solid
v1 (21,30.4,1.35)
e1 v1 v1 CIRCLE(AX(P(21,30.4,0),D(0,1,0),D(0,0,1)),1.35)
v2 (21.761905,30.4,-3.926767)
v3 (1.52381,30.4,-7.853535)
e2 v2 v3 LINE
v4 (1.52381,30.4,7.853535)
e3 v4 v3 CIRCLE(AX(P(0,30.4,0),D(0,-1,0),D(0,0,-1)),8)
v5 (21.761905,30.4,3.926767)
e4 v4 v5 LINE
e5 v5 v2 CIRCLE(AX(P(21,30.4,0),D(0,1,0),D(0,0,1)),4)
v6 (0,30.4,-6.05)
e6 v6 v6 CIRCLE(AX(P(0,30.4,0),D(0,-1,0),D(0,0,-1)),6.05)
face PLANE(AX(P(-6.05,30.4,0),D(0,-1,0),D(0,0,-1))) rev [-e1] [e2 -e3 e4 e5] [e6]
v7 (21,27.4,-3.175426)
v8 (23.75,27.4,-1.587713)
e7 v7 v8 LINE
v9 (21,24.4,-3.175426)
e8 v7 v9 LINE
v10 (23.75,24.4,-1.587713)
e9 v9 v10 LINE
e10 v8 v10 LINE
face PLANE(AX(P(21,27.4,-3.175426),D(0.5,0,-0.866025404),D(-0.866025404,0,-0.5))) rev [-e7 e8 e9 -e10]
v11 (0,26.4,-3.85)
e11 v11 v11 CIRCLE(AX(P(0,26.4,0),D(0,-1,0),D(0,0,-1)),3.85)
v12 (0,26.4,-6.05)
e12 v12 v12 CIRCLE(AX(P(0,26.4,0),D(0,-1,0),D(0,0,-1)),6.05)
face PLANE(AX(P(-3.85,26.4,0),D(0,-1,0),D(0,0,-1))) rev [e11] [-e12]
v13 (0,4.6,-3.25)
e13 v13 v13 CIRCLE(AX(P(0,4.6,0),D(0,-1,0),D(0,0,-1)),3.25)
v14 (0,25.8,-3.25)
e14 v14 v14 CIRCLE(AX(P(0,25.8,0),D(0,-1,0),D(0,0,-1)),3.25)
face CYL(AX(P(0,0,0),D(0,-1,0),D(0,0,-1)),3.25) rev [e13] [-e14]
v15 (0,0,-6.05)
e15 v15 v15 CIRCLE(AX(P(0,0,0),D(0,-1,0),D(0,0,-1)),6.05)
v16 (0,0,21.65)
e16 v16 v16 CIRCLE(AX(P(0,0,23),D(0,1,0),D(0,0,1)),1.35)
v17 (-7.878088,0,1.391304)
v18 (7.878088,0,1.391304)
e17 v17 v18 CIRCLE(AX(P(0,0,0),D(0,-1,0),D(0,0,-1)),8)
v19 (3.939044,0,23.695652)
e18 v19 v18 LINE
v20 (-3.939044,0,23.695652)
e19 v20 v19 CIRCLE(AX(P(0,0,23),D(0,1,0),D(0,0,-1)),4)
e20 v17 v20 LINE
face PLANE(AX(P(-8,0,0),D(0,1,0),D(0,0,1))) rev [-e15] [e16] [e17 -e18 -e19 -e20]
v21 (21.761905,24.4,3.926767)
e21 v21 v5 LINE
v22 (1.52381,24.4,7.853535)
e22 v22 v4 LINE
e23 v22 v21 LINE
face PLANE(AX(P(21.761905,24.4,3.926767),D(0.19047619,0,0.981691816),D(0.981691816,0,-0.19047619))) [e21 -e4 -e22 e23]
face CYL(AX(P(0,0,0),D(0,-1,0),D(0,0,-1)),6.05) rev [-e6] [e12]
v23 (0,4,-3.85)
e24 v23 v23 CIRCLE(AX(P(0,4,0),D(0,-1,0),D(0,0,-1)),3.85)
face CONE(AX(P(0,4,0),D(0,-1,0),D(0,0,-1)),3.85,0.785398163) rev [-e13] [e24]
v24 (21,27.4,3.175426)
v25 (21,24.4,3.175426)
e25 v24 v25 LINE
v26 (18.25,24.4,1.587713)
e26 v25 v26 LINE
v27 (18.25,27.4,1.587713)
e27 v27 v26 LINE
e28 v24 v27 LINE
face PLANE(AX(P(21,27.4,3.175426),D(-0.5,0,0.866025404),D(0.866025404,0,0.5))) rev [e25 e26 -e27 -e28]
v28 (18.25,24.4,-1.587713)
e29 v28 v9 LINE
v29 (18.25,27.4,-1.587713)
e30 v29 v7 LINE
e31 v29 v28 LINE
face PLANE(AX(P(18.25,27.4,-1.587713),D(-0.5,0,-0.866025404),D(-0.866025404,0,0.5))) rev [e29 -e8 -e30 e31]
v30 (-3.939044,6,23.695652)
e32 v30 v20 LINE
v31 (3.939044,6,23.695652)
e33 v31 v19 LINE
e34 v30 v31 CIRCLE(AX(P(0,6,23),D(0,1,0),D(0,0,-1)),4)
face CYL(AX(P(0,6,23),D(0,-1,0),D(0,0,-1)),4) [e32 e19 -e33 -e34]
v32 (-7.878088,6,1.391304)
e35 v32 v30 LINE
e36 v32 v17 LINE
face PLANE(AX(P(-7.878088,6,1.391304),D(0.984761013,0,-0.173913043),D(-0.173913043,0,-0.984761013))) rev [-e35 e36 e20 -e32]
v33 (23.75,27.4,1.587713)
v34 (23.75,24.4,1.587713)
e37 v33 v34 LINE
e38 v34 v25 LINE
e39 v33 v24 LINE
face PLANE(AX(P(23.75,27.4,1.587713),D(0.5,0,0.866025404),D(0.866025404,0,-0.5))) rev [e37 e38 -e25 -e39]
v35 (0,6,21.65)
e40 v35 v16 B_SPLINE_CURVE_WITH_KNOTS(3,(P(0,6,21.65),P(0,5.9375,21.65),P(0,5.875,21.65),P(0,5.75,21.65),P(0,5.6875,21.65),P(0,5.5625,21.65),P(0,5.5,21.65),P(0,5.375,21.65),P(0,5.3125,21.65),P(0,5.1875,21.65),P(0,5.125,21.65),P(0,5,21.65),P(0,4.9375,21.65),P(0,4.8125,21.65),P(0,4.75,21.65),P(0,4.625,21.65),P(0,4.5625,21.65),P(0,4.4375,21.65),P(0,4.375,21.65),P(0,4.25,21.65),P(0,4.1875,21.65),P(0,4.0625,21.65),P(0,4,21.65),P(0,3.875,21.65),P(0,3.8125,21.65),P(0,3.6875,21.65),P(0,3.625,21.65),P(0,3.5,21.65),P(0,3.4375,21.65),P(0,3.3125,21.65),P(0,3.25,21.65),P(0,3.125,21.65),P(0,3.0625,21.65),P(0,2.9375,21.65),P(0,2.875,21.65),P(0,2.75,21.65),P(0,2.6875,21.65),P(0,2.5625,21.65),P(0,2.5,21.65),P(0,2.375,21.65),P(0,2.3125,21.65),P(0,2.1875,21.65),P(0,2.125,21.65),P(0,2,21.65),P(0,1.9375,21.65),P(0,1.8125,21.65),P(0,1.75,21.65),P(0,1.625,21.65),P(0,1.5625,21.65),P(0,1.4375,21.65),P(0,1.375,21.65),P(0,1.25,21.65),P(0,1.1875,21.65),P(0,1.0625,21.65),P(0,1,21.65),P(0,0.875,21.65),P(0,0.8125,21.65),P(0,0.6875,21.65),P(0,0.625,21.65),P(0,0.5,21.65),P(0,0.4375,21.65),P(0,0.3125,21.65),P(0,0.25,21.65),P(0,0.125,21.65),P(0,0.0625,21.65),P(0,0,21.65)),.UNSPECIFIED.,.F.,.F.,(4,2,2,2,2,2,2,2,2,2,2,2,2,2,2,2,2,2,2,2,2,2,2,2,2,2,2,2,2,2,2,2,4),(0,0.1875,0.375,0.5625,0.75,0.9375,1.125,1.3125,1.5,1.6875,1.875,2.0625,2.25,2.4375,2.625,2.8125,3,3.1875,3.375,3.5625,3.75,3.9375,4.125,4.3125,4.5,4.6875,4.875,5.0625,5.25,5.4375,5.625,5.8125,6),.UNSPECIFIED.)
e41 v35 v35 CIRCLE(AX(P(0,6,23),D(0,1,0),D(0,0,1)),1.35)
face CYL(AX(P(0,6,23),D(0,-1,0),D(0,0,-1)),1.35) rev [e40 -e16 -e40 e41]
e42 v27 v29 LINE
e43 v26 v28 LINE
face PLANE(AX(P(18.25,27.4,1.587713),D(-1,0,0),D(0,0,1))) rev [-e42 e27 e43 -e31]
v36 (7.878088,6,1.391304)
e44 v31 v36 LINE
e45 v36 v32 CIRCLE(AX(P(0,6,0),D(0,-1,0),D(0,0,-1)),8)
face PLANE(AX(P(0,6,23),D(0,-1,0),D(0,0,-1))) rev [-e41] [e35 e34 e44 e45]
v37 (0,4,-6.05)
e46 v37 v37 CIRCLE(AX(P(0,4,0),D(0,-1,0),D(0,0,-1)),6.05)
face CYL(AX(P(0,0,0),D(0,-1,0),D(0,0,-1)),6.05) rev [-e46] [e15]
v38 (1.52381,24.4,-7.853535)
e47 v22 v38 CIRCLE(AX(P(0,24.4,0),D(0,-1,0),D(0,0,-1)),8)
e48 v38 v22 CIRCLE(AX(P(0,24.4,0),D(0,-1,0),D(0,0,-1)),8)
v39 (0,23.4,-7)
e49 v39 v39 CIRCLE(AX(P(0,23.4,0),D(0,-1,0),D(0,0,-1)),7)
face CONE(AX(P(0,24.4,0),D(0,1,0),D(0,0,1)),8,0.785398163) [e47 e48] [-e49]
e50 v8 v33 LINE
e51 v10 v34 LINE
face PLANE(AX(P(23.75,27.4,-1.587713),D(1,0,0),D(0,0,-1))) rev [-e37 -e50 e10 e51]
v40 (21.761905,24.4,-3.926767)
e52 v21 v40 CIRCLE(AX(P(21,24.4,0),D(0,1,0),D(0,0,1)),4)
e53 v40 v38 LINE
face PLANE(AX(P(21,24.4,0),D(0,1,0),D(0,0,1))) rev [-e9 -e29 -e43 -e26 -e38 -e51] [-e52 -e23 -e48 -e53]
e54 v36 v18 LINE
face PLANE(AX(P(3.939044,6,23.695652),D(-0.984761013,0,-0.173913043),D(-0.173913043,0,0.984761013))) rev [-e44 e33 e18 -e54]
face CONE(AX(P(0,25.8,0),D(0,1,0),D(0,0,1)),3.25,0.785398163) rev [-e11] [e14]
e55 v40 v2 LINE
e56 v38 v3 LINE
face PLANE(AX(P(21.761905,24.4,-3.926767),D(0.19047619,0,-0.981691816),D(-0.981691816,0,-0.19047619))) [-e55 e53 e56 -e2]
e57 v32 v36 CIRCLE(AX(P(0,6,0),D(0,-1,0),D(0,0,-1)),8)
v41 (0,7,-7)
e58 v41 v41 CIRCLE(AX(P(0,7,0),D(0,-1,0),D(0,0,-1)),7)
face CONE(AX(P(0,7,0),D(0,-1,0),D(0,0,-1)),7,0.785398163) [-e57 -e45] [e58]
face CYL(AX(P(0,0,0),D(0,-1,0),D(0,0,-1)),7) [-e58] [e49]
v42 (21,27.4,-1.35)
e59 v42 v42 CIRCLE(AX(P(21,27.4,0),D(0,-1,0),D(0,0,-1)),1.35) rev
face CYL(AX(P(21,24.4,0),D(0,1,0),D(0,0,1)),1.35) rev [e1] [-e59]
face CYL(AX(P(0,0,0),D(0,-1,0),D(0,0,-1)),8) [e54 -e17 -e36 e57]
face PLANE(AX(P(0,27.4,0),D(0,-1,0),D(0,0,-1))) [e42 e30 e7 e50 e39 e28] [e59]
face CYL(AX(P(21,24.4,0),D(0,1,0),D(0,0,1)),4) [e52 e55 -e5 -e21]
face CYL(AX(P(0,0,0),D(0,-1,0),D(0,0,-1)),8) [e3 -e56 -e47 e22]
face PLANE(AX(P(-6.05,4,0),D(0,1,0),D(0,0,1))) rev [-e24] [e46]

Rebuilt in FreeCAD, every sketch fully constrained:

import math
import FreeCAD as App
import Part
import Sketcher
from FreeCAD import Vector
Q = App.Units.Quantity

doc = App.newDocument("Part")
body = doc.addObject("PartDesign::Body", "Body")

# Sketch on XY plane
sketch1 = body.newObject("Sketcher::SketchObject", "Sketch")
sketch1.AttachmentSupport = (doc.getObject("XY_Plane"), [""])
sketch1.MapMode = "FlatFace"
sketch1.addGeometry(Part.LineSegment(Vector(-6, 0, 0), Vector(-6, 4, 0)), False)
sketch1.addGeometry(Part.LineSegment(Vector(-6, 4, 0), Vector(-3.9, 4, 0)), False)
sketch1.addGeometry(Part.LineSegment(Vector(-3.9, 4, 0), Vector(-3.2, 4.6, 0)), False)
sketch1.addGeometry(Part.LineSegment(Vector(-3.2, 4.6, 0), Vector(-3.2, 25.8, 0)), False)
sketch1.addGeometry(Part.LineSegment(Vector(-3.2, 25.8, 0), Vector(-3.9, 26.4, 0)), False)
sketch1.addGeometry(Part.LineSegment(Vector(-3.9, 26.4, 0), Vector(-6, 26.4, 0)), False)
sketch1.addGeometry(Part.LineSegment(Vector(-6, 26.4, 0), Vector(-6, 30.4, 0)), False)
sketch1.addGeometry(Part.LineSegment(Vector(-6, 30.4, 0), Vector(-8, 30.4, 0)), False)
sketch1.addGeometry(Part.LineSegment(Vector(-8, 30.4, 0), Vector(-8, 24.4, 0)), False)
sketch1.addGeometry(Part.LineSegment(Vector(-8, 24.4, 0), Vector(-7, 23.4, 0)), False)
sketch1.addGeometry(Part.LineSegment(Vector(-7, 23.4, 0), Vector(-7, 7, 0)), False)
sketch1.addGeometry(Part.LineSegment(Vector(-7, 7, 0), Vector(-8, 6, 0)), False)
sketch1.addGeometry(Part.LineSegment(Vector(-8, 6, 0), Vector(-8, 0, 0)), False)
sketch1.addGeometry(Part.LineSegment(Vector(-8, 0, 0), Vector(-6, 0, 0)), False)
sketch1.addConstraint(Sketcher.Constraint("Coincident", 0, 2, 1, 1))
sketch1.addConstraint(Sketcher.Constraint("Coincident", 1, 2, 2, 1))
sketch1.addConstraint(Sketcher.Constraint("Coincident", 2, 2, 3, 1))
sketch1.addConstraint(Sketcher.Constraint("Coincident", 3, 2, 4, 1))
sketch1.addConstraint(Sketcher.Constraint("Coincident", 4, 2, 5, 1))
sketch1.addConstraint(Sketcher.Constraint("Coincident", 5, 2, 6, 1))
sketch1.addConstraint(Sketcher.Constraint("Coincident", 6, 2, 7, 1))
sketch1.addConstraint(Sketcher.Constraint("Coincident", 7, 2, 8, 1))
sketch1.addConstraint(Sketcher.Constraint("Coincident", 8, 2, 9, 1))
sketch1.addConstraint(Sketcher.Constraint("Coincident", 9, 2, 10, 1))
sketch1.addConstraint(Sketcher.Constraint("Coincident", 10, 2, 11, 1))
sketch1.addConstraint(Sketcher.Constraint("Coincident", 11, 2, 12, 1))
sketch1.addConstraint(Sketcher.Constraint("Coincident", 12, 2, 13, 1))
sketch1.addConstraint(Sketcher.Constraint("Coincident", 13, 2, 0, 1))
sketch1.addConstraint(Sketcher.Constraint("Vertical", 0))
sketch1.addConstraint(Sketcher.Constraint("Horizontal", 1))
sketch1.addConstraint(Sketcher.Constraint("Vertical", 3))
sketch1.addConstraint(Sketcher.Constraint("Horizontal", 5))
sketch1.addConstraint(Sketcher.Constraint("Vertical", 6))
sketch1.addConstraint(Sketcher.Constraint("Horizontal", 7))
sketch1.addConstraint(Sketcher.Constraint("Vertical", 8))
sketch1.addConstraint(Sketcher.Constraint("Vertical", 10))
sketch1.addConstraint(Sketcher.Constraint("Vertical", 12))
sketch1.addConstraint(Sketcher.Constraint("Horizontal", 13))
sketch1.addConstraint(Sketcher.Constraint("PointOnObject", 12, 2, -1))
sketch1.addConstraint(Sketcher.Constraint("Perpendicular", 2, 4))
sketch1.addConstraint(Sketcher.Constraint("Parallel", 4, 9))
sketch1.addConstraint(Sketcher.Constraint("Perpendicular", 9, 11))
sketch1.addConstraint(Sketcher.Constraint("Vertical", 1, 2, 4, 2))
sketch1.addConstraint(Sketcher.Constraint("Vertical", 0, 2, 5, 2))
sketch1.addConstraint(Sketcher.Constraint("Vertical", 8, 2, 11, 2))
sketch1.addConstraint(Sketcher.Constraint("Equal", 0, 6))
sketch1.addConstraint(Sketcher.Constraint("Equal", 8, 12))
sketch1.addConstraint(Sketcher.Constraint("Equal", 2, 4))
sketch1.addConstraint(Sketcher.Constraint("DistanceY", 0, 1, 0, 2, 4.0))
sketch1.addConstraint(Sketcher.Constraint("DistanceY", 8, 2, 8, 1, 6.0))
sketch1.addConstraint(Sketcher.Constraint("DistanceX", 1, 1, 1, 2, 2.2))
sketch1.addConstraint(Sketcher.Constraint("DistanceY", 3, 1, 3, 2, 21.2))
sketch1.addConstraint(Sketcher.Constraint("DistanceY", 10, 2, 10, 1, 16.4))
sketch1.addConstraint(Sketcher.Constraint("DistanceX", 7, 2, -1, 1, 8.0))
sketch1.addConstraint(Sketcher.Constraint("DistanceX", 9, 2, -1, 1, 7.0))
sketch1.addConstraint(Sketcher.Constraint("DistanceX", 7, 2, 7, 1, 1.95))
revolution = body.newObject("PartDesign::Revolution", "Revolution")
revolution.Profile = sketch1
revolution.ReferenceAxis = (sketch1, ["V_Axis"])
revolution.Angle = 360

# Sketch on XZ plane
sketch2 = body.newObject("Sketcher::SketchObject", "Sketch001")
sketch2.AttachmentSupport = (doc.getObject("XZ_Plane"), [""])
sketch2.MapMode = "FlatFace"
sketch2.addGeometry(Part.LineSegment(Vector(-7.9, 1.4, 0), Vector(-3.9, 23.7, 0)), False)
sketch2.addGeometry(Part.ArcOfCircle(Part.Circle(Vector(0, 23, 0), Vector(0, 0, 1), 4), math.radians(10), math.radians(170)), False)
sketch2.addGeometry(Part.LineSegment(Vector(3.9, 23.7, 0), Vector(7.9, 1.4, 0)), False)
sketch2.addGeometry(Part.ArcOfCircle(Part.Circle(Vector(0, 0, 0), Vector(0, 0, 1), 8), math.radians(10), math.radians(170)), False)
sketch2.addGeometry(Part.Circle(Vector(0, 23, 0), Vector(0, 0, 1), 1.4), False)
sketch2.addConstraint(Sketcher.Constraint("Tangent", 0, 2, 1, 2))
sketch2.addConstraint(Sketcher.Constraint("Tangent", 1, 1, 2, 1))
sketch2.addConstraint(Sketcher.Constraint("Tangent", 2, 2, 3, 1))
sketch2.addConstraint(Sketcher.Constraint("Tangent", 3, 2, 0, 1))
sketch2.addConstraint(Sketcher.Constraint("Coincident", 3, 3, -1, 1))
sketch2.addConstraint(Sketcher.Constraint("Coincident", 4, 3, 1, 3))
sketch2.addConstraint(Sketcher.Constraint("PointOnObject", 1, 3, -2))
sketch2.addConstraint(Sketcher.Constraint("Radius", 1, 4.0))
sketch2.addConstraint(Sketcher.Constraint("Radius", 3, 8.0))
sketch2.addConstraint(Sketcher.Constraint("Diameter", 4, 2.7))
sketch2.addConstraint(Sketcher.Constraint("DistanceY", -1, 1, 1, 3, 23.0))
pad1 = body.newObject("PartDesign::Pad", "Pad")
pad1.Profile = sketch2
pad1.Length = 6
pad1.Reversed = True

# Sketch on XZ plane
sketch3 = body.newObject("Sketcher::SketchObject", "Sketch002")
sketch3.AttachmentSupport = (doc.getObject("XZ_Plane"), [""])
sketch3.MapMode = "FlatFace"
sketch3.AttachmentOffset = App.Placement(Vector(0, 0, -24.4), App.Rotation())
sketch3.addGeometry(Part.LineSegment(Vector(21.8, -3.9, 0), Vector(1.5, -7.9, 0)), False)
sketch3.addGeometry(Part.ArcOfCircle(Part.Circle(Vector(0, 0, 0), Vector(0, 0, 1), 8), math.radians(-79), math.radians(79)), False)
sketch3.addGeometry(Part.LineSegment(Vector(1.5, 7.9, 0), Vector(21.8, 3.9, 0)), False)
sketch3.addGeometry(Part.ArcOfCircle(Part.Circle(Vector(21, 0, 0), Vector(0, 0, 1), 4), math.radians(-79), math.radians(79)), False)
sketch3.addGeometry(Part.Circle(Vector(21, 0, 0), Vector(0, 0, 1), 1.4), False)
sketch3.addConstraint(Sketcher.Constraint("Tangent", 0, 2, 1, 1))
sketch3.addConstraint(Sketcher.Constraint("Tangent", 1, 2, 2, 1))
sketch3.addConstraint(Sketcher.Constraint("Tangent", 2, 2, 3, 2))
sketch3.addConstraint(Sketcher.Constraint("Tangent", 3, 1, 0, 1))
sketch3.addConstraint(Sketcher.Constraint("Coincident", 1, 3, -1, 1))
sketch3.addConstraint(Sketcher.Constraint("Coincident", 4, 3, 3, 3))
sketch3.addConstraint(Sketcher.Constraint("PointOnObject", 3, 3, -1))
sketch3.addConstraint(Sketcher.Constraint("Radius", 1, 8.0))
sketch3.addConstraint(Sketcher.Constraint("Radius", 3, 4.0))
sketch3.addConstraint(Sketcher.Constraint("Diameter", 4, 2.7))
sketch3.addConstraint(Sketcher.Constraint("DistanceX", -1, 1, 3, 3, 21.0))
pad2 = body.newObject("PartDesign::Pad", "Pad001")
pad2.Profile = sketch3
pad2.Length = 6
pad2.Reversed = True

# Sketch on XZ plane
sketch4 = body.newObject("Sketcher::SketchObject", "Sketch003")
sketch4.AttachmentSupport = (doc.getObject("XZ_Plane"), [""])
sketch4.MapMode = "FlatFace"
sketch4.AttachmentOffset = App.Placement(Vector(0, 0, -24.4), App.Rotation())
sketch4.addGeometry(Part.LineSegment(Vector(21, -3.2, 0), Vector(23.8, -1.6, 0)), False)
sketch4.addGeometry(Part.LineSegment(Vector(23.8, -1.6, 0), Vector(23.8, 1.6, 0)), False)
sketch4.addGeometry(Part.LineSegment(Vector(23.8, 1.6, 0), Vector(21, 3.2, 0)), False)
sketch4.addGeometry(Part.LineSegment(Vector(21, 3.2, 0), Vector(18.2, 1.6, 0)), False)
sketch4.addGeometry(Part.LineSegment(Vector(18.2, 1.6, 0), Vector(18.2, -1.6, 0)), False)
sketch4.addGeometry(Part.LineSegment(Vector(18.2, -1.6, 0), Vector(21, -3.2, 0)), False)
sketch4.addConstraint(Sketcher.Constraint("Coincident", 0, 2, 1, 1))
sketch4.addConstraint(Sketcher.Constraint("Coincident", 1, 2, 2, 1))
sketch4.addConstraint(Sketcher.Constraint("Coincident", 2, 2, 3, 1))
sketch4.addConstraint(Sketcher.Constraint("Coincident", 3, 2, 4, 1))
sketch4.addConstraint(Sketcher.Constraint("Coincident", 4, 2, 5, 1))
sketch4.addConstraint(Sketcher.Constraint("Coincident", 5, 2, 0, 1))
sketch4.addConstraint(Sketcher.Constraint("Vertical", 1))
sketch4.addConstraint(Sketcher.Constraint("Vertical", 4))
sketch4.addConstraint(Sketcher.Constraint("Symmetric", 2, 2, 5, 2, -1))
sketch4.addConstraint(Sketcher.Constraint("Parallel", 0, 3))
sketch4.addConstraint(Sketcher.Constraint("Parallel", 2, 5))
sketch4.addConstraint(Sketcher.Constraint("Horizontal", 1, 2, 3, 2))
sketch4.addConstraint(Sketcher.Constraint("Horizontal", 0, 2, 4, 2))
sketch4.addConstraint(Sketcher.Constraint("Angle", 0, Q("30 deg")))
sketch4.addConstraint(Sketcher.Constraint("DistanceX", -1, 1, 2, 2, 21.0))
sketch4.addConstraint(Sketcher.Constraint("DistanceX", 3, 2, 1, 2, 5.5))
sketch4.addConstraint(Sketcher.Constraint("DistanceY", 1, 1, 1, 2, 3.175426))
pocket1 = body.newObject("PartDesign::Pocket", "Pocket")
pocket1.Profile = sketch4
pocket1.Length = 3

doc.recompute()
